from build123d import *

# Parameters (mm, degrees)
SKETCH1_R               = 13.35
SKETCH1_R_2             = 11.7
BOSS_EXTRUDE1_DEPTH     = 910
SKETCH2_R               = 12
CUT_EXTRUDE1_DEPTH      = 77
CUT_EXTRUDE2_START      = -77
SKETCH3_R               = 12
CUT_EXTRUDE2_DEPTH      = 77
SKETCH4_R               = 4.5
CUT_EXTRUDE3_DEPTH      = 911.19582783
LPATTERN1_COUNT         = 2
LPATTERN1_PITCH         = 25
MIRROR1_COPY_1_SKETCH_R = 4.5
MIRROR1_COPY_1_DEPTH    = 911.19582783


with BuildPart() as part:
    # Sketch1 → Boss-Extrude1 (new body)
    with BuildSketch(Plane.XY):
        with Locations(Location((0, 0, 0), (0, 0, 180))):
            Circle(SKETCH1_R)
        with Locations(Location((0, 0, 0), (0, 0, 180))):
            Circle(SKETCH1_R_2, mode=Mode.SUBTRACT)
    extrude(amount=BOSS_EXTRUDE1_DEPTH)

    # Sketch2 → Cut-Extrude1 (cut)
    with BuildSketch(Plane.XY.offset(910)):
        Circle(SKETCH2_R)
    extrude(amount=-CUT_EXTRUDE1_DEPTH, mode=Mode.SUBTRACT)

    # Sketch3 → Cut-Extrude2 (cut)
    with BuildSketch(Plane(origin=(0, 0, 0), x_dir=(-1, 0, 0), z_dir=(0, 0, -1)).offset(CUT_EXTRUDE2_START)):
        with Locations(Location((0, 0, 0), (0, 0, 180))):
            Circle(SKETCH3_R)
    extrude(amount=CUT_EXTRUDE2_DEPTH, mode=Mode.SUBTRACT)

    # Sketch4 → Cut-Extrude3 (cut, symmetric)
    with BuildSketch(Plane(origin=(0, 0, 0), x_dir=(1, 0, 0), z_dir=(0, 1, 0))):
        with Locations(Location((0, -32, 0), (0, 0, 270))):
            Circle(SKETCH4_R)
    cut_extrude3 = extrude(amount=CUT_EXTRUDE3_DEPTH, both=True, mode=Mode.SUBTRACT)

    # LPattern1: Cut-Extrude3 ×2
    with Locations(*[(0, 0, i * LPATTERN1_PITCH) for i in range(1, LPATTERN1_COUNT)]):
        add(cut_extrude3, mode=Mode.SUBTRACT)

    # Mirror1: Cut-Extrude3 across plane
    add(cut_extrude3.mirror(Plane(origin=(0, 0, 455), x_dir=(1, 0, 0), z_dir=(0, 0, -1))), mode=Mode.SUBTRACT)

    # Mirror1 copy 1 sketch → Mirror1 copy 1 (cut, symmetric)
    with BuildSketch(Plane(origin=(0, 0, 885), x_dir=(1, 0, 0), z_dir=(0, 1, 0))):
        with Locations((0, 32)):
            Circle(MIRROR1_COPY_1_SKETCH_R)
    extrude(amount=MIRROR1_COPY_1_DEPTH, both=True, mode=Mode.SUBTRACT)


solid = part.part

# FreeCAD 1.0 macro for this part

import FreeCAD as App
import Part
import Sketcher
Q = App.Units.Quantity

doc = App.newDocument("Part")
params = doc.addObject("Spreadsheet::Sheet", "Params")
for row, (alias, value) in enumerate([
    ("sketch1_diameter", "26.7 mm"),
    ("sketch1_diameter2", "23.4 mm"),
    ("pad1_length", "910 mm"),
    ("sketch2_diameter", "24 mm"),
    ("pocket1_length", "77 mm"),
    ("sketch3_diameter", "24 mm"),
    ("pocket2_length", "77 mm"),
    ("sketch4_diameter", "9 mm"),
    ("pocket3_length", "1822.391656 mm"),
    ("linearpattern_pitch", "25 mm"),
    ("sketch5_diameter", "9 mm"),
    ("pocket4_length", "1822.391656 mm"),
], start=1):
    params.set(f"A{row}", alias)
    params.set(f"B{row}", "=" + value)
    params.setAlias(f"B{row}", alias)

body = doc.addObject("PartDesign::Body", "Body")

sketch1 = doc.addObject("Sketcher::SketchObject", "Sketch")
body.addObject(sketch1)
sketch1.AttachmentSupport = (doc.XY_Plane, [""])
sketch1.MapMode = "FlatFace"
sketch1.addGeometry([
    Part.Circle(App.Vector(0, 0, 0), App.Vector(0, 0, 1), 13),
    Part.Circle(App.Vector(0, 0, 0), App.Vector(0, 0, 1), 12),
], False)
sketch1.addConstraint([
    Sketcher.Constraint("Coincident", 0, 3, -1, 1),
    Sketcher.Constraint("Coincident", 1, 3, -1, 1),
    Sketcher.Constraint("Diameter", 0, Q("26.7 mm")),
    Sketcher.Constraint("Diameter", 1, Q("23.4 mm")),
])
sketch1.setExpression("Constraints[2]", "Params.sketch1_diameter")
sketch1.setExpression("Constraints[3]", "Params.sketch1_diameter2")
pad1 = doc.addObject("PartDesign::Pad", "Pad")
body.addObject(pad1)
pad1.Profile = sketch1
pad1.setExpression("Length", "Params.pad1_length")

sketch2 = doc.addObject("Sketcher::SketchObject", "Sketch001")
body.addObject(sketch2)
sketch2.AttachmentSupport = (doc.XY_Plane, [""])
sketch2.MapMode = "FlatFace"
sketch2.AttachmentOffset = App.Placement(App.Vector(0, 0, 910), App.Rotation())
sketch2.addGeometry(Part.Circle(App.Vector(0, 0, 0), App.Vector(0, 0, 1), 12), False)
sketch2.addConstraint([
    Sketcher.Constraint("Coincident", 0, 3, -1, 1),
    Sketcher.Constraint("Diameter", 0, Q("24 mm")),
])
sketch2.setExpression("Constraints[1]", "Params.sketch2_diameter")
pocket1 = doc.addObject("PartDesign::Pocket", "Pocket")
body.addObject(pocket1)
pocket1.Profile = sketch2
pocket1.setExpression("Length", "Params.pocket1_length")

sketch3 = doc.addObject("Sketcher::SketchObject", "Sketch002")
body.addObject(sketch3)
sketch3.AttachmentSupport = (doc.XY_Plane, [""])
sketch3.MapMode = "FlatFace"
sketch3.AttachmentOffset = App.Placement(App.Vector(0, 0, 77), App.Rotation())
sketch3.addGeometry(Part.Circle(App.Vector(0, 0, 0), App.Vector(0, 0, 1), 12), False)
sketch3.addConstraint([
    Sketcher.Constraint("Coincident", 0, 3, -1, 1),
    Sketcher.Constraint("Diameter", 0, Q("24 mm")),
])
sketch3.setExpression("Constraints[1]", "Params.sketch3_diameter")
pocket2 = doc.addObject("PartDesign::Pocket", "Pocket001")
body.addObject(pocket2)
pocket2.Profile = sketch3
pocket2.setExpression("Length", "Params.pocket2_length")

sketch4 = doc.addObject("Sketcher::SketchObject", "Sketch003")
body.addObject(sketch4)
sketch4.AttachmentSupport = (doc.XZ_Plane, [""])
sketch4.MapMode = "FlatFace"
sketch4.addGeometry(Part.Circle(App.Vector(0, 32, 0), App.Vector(0, 0, 1), 4.5), False)
sketch4.addConstraint([
    Sketcher.Constraint("PointOnObject", 0, 3, -2),
    Sketcher.Constraint("Diameter", 0, Q("9 mm")),
    Sketcher.Constraint("DistanceY", -1, 1, 0, 3, Q("32 mm")),
])
sketch4.setExpression("Constraints[1]", "Params.sketch4_diameter")
pocket3 = doc.addObject("PartDesign::Pocket", "Pocket002")
body.addObject(pocket3)
pocket3.Profile = sketch4
pocket3.setExpression("Length", "Params.pocket3_length")
pocket3.Midplane = True
doc.recompute()

linearpattern = doc.addObject("PartDesign::LinearPattern", "LinearPattern")
body.addObject(linearpattern)
linearpattern.Originals = [pocket3]
linearpattern.Direction = (doc.Z_Axis, [""])
linearpattern.Mode = "offset"
linearpattern.setExpression("Offset", "Params.linearpattern_pitch")
linearpattern.Occurrences = 2
body.Tip = linearpattern
doc.recompute()

datumplane = doc.addObject("PartDesign::Plane", "DatumPlane")
body.addObject(datumplane)
datumplane.AttachmentSupport = (doc.XY_Plane, [""])
datumplane.MapMode = "FlatFace"
datumplane.AttachmentOffset = App.Placement(App.Vector(0, 0, 455), App.Rotation())
mirrored = doc.addObject("PartDesign::Mirrored", "Mirrored")
body.addObject(mirrored)
mirrored.Originals = [pocket3]
mirrored.MirrorPlane = (datumplane, [""])
body.Tip = mirrored

sketch5 = doc.addObject("Sketcher::SketchObject", "Sketch004")
body.addObject(sketch5)
sketch5.AttachmentSupport = (doc.XZ_Plane, [""])
sketch5.MapMode = "FlatFace"
sketch5.addGeometry(Part.Circle(App.Vector(0, 853, 0), App.Vector(0, 0, 1), 4.5), False)
sketch5.addConstraint([
    Sketcher.Constraint("PointOnObject", 0, 3, -2),
    Sketcher.Constraint("Diameter", 0, Q("9 mm")),
    Sketcher.Constraint("DistanceY", -1, 1, 0, 3, Q("853 mm")),
])
sketch5.setExpression("Constraints[1]", "Params.sketch5_diameter")
pocket4 = doc.addObject("PartDesign::Pocket", "Pocket003")
body.addObject(pocket4)
pocket4.Profile = sketch5
pocket4.setExpression("Length", "Params.pocket4_length")
pocket4.Midplane = True

doc.recompute()
